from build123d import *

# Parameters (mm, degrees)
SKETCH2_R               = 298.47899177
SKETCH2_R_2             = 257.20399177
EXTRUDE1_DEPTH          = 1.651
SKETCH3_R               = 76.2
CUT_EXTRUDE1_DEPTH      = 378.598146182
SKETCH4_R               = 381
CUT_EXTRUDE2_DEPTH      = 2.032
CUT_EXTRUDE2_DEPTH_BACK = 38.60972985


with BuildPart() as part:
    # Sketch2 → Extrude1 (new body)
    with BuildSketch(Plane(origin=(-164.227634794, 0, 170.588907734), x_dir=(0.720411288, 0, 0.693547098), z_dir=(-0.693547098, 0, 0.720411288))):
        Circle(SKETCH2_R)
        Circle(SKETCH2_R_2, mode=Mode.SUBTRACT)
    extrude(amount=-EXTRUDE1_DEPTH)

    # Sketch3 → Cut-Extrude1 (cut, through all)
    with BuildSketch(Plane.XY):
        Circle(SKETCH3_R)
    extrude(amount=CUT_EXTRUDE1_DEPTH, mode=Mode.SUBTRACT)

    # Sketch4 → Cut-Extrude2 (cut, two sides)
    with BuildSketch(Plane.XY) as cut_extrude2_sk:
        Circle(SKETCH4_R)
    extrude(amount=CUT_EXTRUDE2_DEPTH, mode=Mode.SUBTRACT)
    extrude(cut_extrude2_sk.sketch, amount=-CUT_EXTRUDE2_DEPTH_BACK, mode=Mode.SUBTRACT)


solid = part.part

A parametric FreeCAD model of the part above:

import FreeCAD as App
import Part
import Sketcher
Q = App.Units.Quantity

doc = App.newDocument("Part")
body = doc.addObject("PartDesign::Body", "Body")
body.AllowCompound = True

sketch1 = body.newObject("Sketcher::SketchObject", "Sketch")
sketch1.Placement = App.Placement(App.Vector(-164.227635, 0, 170.588908), App.Rotation(App.Vector(0.720411288, 0, 0.693547098), App.Vector(0, 1.000000001, 0), App.Vector(-0.693547098, 0, 0.720411288), "ZXY"))
sketch1.addGeometry(Part.Circle(App.Vector(0, 0, 0), App.Vector(0, 0, 1), 298.478992), False)
sketch1.addGeometry(Part.Circle(App.Vector(0, 0, 0), App.Vector(0, 0, 1), 257.203992), False)
sketch1.addConstraint(Sketcher.Constraint("Coincident", 0, 3, -1, 1))
sketch1.addConstraint(Sketcher.Constraint("Coincident", 1, 3, -1, 1))
sketch1.addConstraint(Sketcher.Constraint("Diameter", 0, 596.957984))
sketch1.addConstraint(Sketcher.Constraint("Diameter", 1, 514.407984))
pad1 = body.newObject("PartDesign::Pad", "Pad")
pad1.Profile = sketch1
pad1.Length = Q("0.065 in")
pad1.Reversed = True

sketch2 = body.newObject("Sketcher::SketchObject", "Sketch001")
sketch2.AttachmentSupport = (doc.getObject("XY_Plane"), [""])
sketch2.MapMode = "FlatFace"
sketch2.addGeometry(Part.Circle(App.Vector(0, 0, 0), App.Vector(0, 0, 1), 76.2), False)
sketch2.addConstraint(Sketcher.Constraint("Coincident", 0, 3, -1, 1))
sketch2.addConstraint(Sketcher.Constraint("Diameter", 0, Q("6 in")))
pocket1 = body.newObject("PartDesign::Pocket", "Pocket")
pocket1.Profile = sketch2
pocket1.Type = "ThroughAll"
pocket1.Reversed = True

sketch3 = body.newObject("Sketcher::SketchObject", "Sketch002")
sketch3.AttachmentSupport = (doc.getObject("XY_Plane"), [""])
sketch3.MapMode = "FlatFace"
sketch3.addGeometry(Part.Circle(App.Vector(0, 0, 0), App.Vector(0, 0, 1), 381), False)
sketch3.addConstraint(Sketcher.Constraint("Coincident", 0, 3, -1, 1))
sketch3.addConstraint(Sketcher.Constraint("Diameter", 0, Q("30 in")))
pocket2 = body.newObject("PartDesign::Pocket", "Pocket001")
pocket2.Profile = sketch3
pocket2.Type = "TwoLengths"
pocket2.Length = Q("0.08 in")
pocket2.Length2 = 38.60973
pocket2.Reversed = True

doc.recompute()
